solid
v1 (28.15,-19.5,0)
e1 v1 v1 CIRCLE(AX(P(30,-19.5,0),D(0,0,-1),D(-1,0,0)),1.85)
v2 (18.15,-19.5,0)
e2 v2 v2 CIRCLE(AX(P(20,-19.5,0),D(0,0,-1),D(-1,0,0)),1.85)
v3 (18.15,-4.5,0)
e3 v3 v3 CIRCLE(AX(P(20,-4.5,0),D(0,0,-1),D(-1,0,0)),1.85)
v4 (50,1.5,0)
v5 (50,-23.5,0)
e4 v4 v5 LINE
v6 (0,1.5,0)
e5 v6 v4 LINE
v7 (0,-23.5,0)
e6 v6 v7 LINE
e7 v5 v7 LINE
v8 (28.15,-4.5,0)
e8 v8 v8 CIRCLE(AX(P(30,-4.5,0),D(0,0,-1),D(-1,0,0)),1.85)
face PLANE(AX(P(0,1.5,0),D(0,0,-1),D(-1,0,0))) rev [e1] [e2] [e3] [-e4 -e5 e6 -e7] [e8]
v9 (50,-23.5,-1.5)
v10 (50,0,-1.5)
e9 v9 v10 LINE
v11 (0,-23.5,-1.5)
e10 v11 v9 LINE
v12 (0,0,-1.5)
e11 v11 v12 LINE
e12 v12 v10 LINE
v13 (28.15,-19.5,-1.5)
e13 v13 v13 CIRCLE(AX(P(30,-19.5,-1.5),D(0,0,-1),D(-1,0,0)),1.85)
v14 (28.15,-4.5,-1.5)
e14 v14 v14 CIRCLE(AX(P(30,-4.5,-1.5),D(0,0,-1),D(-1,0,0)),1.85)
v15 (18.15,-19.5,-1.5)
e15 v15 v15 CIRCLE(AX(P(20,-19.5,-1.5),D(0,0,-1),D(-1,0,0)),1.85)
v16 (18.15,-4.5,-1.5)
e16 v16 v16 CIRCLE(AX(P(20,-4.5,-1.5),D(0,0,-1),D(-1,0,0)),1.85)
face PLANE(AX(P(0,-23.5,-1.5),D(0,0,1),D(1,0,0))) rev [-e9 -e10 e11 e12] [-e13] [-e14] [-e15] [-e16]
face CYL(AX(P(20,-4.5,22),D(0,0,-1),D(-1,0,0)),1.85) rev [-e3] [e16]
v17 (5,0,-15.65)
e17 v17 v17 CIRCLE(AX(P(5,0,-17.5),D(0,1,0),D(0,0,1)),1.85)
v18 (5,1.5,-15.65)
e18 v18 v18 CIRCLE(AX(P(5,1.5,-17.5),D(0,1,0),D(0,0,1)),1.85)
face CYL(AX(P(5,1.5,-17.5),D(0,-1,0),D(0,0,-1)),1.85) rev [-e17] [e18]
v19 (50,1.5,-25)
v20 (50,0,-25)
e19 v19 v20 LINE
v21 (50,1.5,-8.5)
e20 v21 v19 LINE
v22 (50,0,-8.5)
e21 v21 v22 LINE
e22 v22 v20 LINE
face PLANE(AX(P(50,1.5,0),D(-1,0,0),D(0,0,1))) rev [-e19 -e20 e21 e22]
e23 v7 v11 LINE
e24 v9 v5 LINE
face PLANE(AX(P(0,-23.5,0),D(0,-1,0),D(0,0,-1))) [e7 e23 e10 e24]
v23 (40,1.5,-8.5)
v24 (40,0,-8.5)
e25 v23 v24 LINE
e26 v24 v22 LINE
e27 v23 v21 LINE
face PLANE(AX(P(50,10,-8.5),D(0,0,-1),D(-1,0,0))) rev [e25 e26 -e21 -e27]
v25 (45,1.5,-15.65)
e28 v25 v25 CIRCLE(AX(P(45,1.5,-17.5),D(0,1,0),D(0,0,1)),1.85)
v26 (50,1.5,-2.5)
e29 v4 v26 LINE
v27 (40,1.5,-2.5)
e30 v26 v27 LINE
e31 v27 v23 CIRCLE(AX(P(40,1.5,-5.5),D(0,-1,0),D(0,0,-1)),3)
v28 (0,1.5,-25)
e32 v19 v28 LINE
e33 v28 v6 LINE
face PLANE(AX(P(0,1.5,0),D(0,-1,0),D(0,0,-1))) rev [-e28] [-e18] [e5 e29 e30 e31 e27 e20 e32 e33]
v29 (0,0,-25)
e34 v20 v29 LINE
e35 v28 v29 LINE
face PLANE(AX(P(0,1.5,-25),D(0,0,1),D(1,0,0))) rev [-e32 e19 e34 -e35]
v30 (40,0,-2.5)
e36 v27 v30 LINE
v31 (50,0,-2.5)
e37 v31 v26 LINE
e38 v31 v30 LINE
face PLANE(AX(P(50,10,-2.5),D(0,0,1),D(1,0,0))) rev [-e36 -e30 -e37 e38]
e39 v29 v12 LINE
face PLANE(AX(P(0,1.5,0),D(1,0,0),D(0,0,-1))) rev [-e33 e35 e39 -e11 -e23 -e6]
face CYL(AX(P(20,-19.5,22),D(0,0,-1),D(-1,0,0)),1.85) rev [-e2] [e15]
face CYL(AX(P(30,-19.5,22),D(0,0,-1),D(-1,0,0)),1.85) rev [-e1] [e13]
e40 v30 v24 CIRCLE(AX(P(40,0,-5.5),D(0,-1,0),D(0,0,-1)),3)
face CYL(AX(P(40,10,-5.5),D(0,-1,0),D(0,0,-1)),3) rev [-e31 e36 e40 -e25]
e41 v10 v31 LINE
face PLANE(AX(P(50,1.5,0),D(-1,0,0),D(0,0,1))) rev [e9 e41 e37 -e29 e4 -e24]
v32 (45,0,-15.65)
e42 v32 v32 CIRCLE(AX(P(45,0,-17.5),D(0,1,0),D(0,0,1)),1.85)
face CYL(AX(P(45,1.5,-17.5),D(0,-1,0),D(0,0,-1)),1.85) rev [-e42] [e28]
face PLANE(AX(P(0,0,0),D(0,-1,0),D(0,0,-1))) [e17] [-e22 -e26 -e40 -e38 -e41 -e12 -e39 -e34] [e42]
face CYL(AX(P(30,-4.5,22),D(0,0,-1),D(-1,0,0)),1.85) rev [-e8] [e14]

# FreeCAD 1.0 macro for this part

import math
import FreeCAD as App
import Part
import Sketcher

V = App.Vector
Q = App.Units.Quantity


def add_polygon(sketch, points):
    """Adds a closed chain of lines whose ends are joined by coincident constraints."""
    first, n = sketch.GeometryCount, len(points)
    for a, b in zip(points, points[1:] + points[:1]):
        sketch.addGeometry(Part.LineSegment(App.Vector(*a, 0), App.Vector(*b, 0)), False)
    for i in range(n):
        sketch.addConstraint(Sketcher.Constraint("Coincident", first + i, 2, first + (i + 1) % n, 1))

doc = App.newDocument("Part")
body = doc.addObject("PartDesign::Body", "Body")

# Sketch on XZ plane
sketch1 = body.newObject("Sketcher::SketchObject", "Sketch")
sketch1.AttachmentSupport = (doc.getObject("XZ_Plane"), [""])
sketch1.MapMode = "FlatFace"
add_polygon(sketch1, [(0, -25), (0, 0), (50, 0), (50, -25)])  # lines 0-3
sketch1.addGeometry(Part.Circle(V(5, -17.5, 0), V(0, 0, 1), 1.9), False)  # 4
sketch1.addGeometry(Part.Circle(V(45, -17.5, 0), V(0, 0, 1), 1.9), False)  # 5
sketch1.addConstraint([
    Sketcher.Constraint("Vertical", 0),
    Sketcher.Constraint("Horizontal", 1),
    Sketcher.Constraint("Vertical", 2),
    Sketcher.Constraint("Horizontal", 3),
    Sketcher.Constraint("Coincident", 0, 2, -1, 1),
    Sketcher.Constraint("Equal", 4, 5),
    Sketcher.Constraint("Horizontal", 4, 3, 5, 3),
    Sketcher.Constraint("Diameter", 4, Q("3.7 mm")),
    Sketcher.Constraint("DistanceX", 1, 1, 1, 2, Q("50 mm")),
    Sketcher.Constraint("DistanceY", 0, 1, 0, 2, Q("25 mm")),
    Sketcher.Constraint("DistanceX", -1, 1, 4, 3, Q("5 mm")),
    Sketcher.Constraint("DistanceX", -1, 1, 5, 3, Q("45 mm")),
    Sketcher.Constraint("DistanceY", 4, 3, -1, 1, Q("17.5 mm")),
])
pad1 = body.newObject("PartDesign::Pad", "Pad")
pad1.Profile = sketch1
pad1.Length = 1.5
pad1.Reversed = True

# Sketch on XZ plane
sketch2 = body.newObject("Sketcher::SketchObject", "Sketch001")
sketch2.AttachmentSupport = (doc.getObject("XZ_Plane"), [""])
sketch2.MapMode = "FlatFace"
add_polygon(sketch2, [(0, 0), (0, -1.5), (50, -1.5), (50, 0)])  # lines 0-3
sketch2.addConstraint([
    Sketcher.Constraint("Vertical", 0),
    Sketcher.Constraint("Horizontal", 1),
    Sketcher.Constraint("Vertical", 2),
    Sketcher.Constraint("Horizontal", 3),
    Sketcher.Constraint("Coincident", 3, 2, -1, 1),
    Sketcher.Constraint("DistanceX", 1, 1, 1, 2, Q("50 mm")),
    Sketcher.Constraint("DistanceY", 0, 2, 0, 1, Q("1.5 mm")),
])
pad2 = body.newObject("PartDesign::Pad", "Pad001")
pad2.Profile = sketch2
pad2.Length = 23.5

# Sketch on XY plane
sketch3 = body.newObject("Sketcher::SketchObject", "Sketch002")
sketch3.AttachmentSupport = (doc.getObject("XY_Plane"), [""])
sketch3.MapMode = "FlatFace"
sketch3.AttachmentOffset = App.Placement(V(0, 0, -1.5), App.Rotation())
sketch3.addGeometry([
    Part.Circle(V(20, -19.5, 0), V(0, 0, 1), 1.9),
    Part.Circle(V(30, -19.5, 0), V(0, 0, 1), 1.9),
    Part.Circle(V(20, -4.5, 0), V(0, 0, 1), 1.9),
    Part.Circle(V(30, -4.5, 0), V(0, 0, 1), 1.9),
], False)
sketch3.addConstraint([
    Sketcher.Constraint("Equal", 0, 1),
    Sketcher.Constraint("Equal", 1, 2),
    Sketcher.Constraint("Equal", 2, 3),
    Sketcher.Constraint("Horizontal", 0, 3, 1, 3),
    Sketcher.Constraint("Horizontal", 2, 3, 3, 3),
    Sketcher.Constraint("Vertical", 0, 3, 2, 3),
    Sketcher.Constraint("Vertical", 1, 3, 3, 3),
    Sketcher.Constraint("Diameter", 0, Q("3.7 mm")),
    Sketcher.Constraint("DistanceX", -1, 1, 0, 3, Q("20 mm")),
    Sketcher.Constraint("DistanceX", -1, 1, 1, 3, Q("30 mm")),
    Sketcher.Constraint("DistanceY", 0, 3, 2, 3, Q("15 mm")),
    Sketcher.Constraint("DistanceY", 0, 3, -1, 1, Q("19.5 mm")),
])
pocket1 = body.newObject("PartDesign::Pocket", "Pocket")
pocket1.Profile = sketch3
pocket1.Length = 23.5
pocket1.Reversed = True

# Sketch on XZ plane
sketch4 = body.newObject("Sketcher::SketchObject", "Sketch003")
sketch4.AttachmentSupport = (doc.getObject("XZ_Plane"), [""])
sketch4.MapMode = "FlatFace"
sketch4.addGeometry([
    Part.LineSegment(V(40, -8.5, 0), V(50, -8.5, 0)),
    Part.ArcOfCircle(Part.Circle(V(50, -5.5, 0), V(0, 0, 1), 3), math.radians(-90), math.radians(90)),
    Part.LineSegment(V(50, -2.5, 0), V(40, -2.5, 0)),
    Part.ArcOfCircle(Part.Circle(V(40, -5.5, 0), V(0, 0, 1), 3), math.radians(90), math.radians(270)),
], False)
sketch4.addConstraint([
    Sketcher.Constraint("Tangent", 0, 2, 1, 1),
    Sketcher.Constraint("Tangent", 1, 2, 2, 1),
    Sketcher.Constraint("Tangent", 2, 2, 3, 1),
    Sketcher.Constraint("Tangent", 3, 2, 0, 1),
    Sketcher.Constraint("Horizontal", 0),
    Sketcher.Constraint("Horizontal", 2),
    Sketcher.Constraint("Radius", 1, Q("3 mm")),
    Sketcher.Constraint("DistanceX", 0, 1, 0, 2, Q("10 mm")),
    Sketcher.Constraint("DistanceX", -1, 1, 1, 3, Q("50 mm")),
    Sketcher.Constraint("DistanceY", 1, 3, -1, 1, Q("5.5 mm")),
])
pocket2 = body.newObject("PartDesign::Pocket", "Pocket001")
pocket2.Profile = sketch4
pocket2.Length = 10

doc.recompute()
